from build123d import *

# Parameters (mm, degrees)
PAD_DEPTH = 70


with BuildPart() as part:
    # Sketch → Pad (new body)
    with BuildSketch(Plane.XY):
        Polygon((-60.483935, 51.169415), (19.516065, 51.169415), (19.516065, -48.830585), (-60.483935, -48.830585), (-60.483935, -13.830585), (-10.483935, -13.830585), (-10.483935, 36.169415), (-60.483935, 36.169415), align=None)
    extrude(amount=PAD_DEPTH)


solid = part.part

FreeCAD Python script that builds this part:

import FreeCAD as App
import Part
import Sketcher

V = App.Vector

doc = App.newDocument("Part")
body = doc.addObject("PartDesign::Body", "Body")

sketch1 = body.newObject("Sketcher::SketchObject", "Sketch")
sketch1.AttachmentSupport = (doc.getObject("XY_Plane"), [""])
sketch1.MapMode = "FlatFace"
sketch1.addGeometry([
    Part.LineSegment(V(20, 51, 0), V(-60, 51, 0)),
    Part.LineSegment(V(-60, 51, 0), V(-60, 36, 0)),
    Part.LineSegment(V(-60, 36, 0), V(-10, 36, 0)),
    Part.LineSegment(V(-10, 36, 0), V(-10, -14, 0)),
    Part.LineSegment(V(-10, -14, 0), V(-60, -14, 0)),
    Part.LineSegment(V(-60, -14, 0), V(-60, -49, 0)),
    Part.LineSegment(V(-60, -49, 0), V(20, -49, 0)),
    Part.LineSegment(V(20, -49, 0), V(20, 51, 0)),
], False)
sketch1.addConstraint([
    Sketcher.Constraint("Coincident", 0, 2, 1, 1),
    Sketcher.Constraint("Coincident", 1, 2, 2, 1),
    Sketcher.Constraint("Coincident", 2, 2, 3, 1),
    Sketcher.Constraint("Coincident", 3, 2, 4, 1),
    Sketcher.Constraint("Coincident", 4, 2, 5, 1),
    Sketcher.Constraint("Coincident", 5, 2, 6, 1),
    Sketcher.Constraint("Coincident", 6, 2, 7, 1),
    Sketcher.Constraint("Coincident", 7, 2, 0, 1),
    Sketcher.Constraint("Horizontal", 0),
    Sketcher.Constraint("Vertical", 1),
    Sketcher.Constraint("Horizontal", 2),
    Sketcher.Constraint("Vertical", 3),
    Sketcher.Constraint("Horizontal", 4),
    Sketcher.Constraint("Vertical", 5),
    Sketcher.Constraint("Horizontal", 6),
    Sketcher.Constraint("Vertical", 7),
    Sketcher.Constraint("Vertical", 1, 2, 4, 2),
    Sketcher.Constraint("Equal", 4, 3),
    Sketcher.Constraint("DistanceX", 0, 2, 0, 1, 80.0),
    Sketcher.Constraint("DistanceX", 2, 1, 2, 2, 50.0),
    Sketcher.Constraint("DistanceY", 1, 2, 1, 1, 15.0),
    Sketcher.Constraint("DistanceY", 5, 2, 5, 1, 35.0),
    Sketcher.Constraint("DistanceX", 0, 2, -1, 1, 60.483935),
    Sketcher.Constraint("DistanceY", -1, 1, 0, 2, 51.169415),
])
pad1 = body.newObject("PartDesign::Pad", "Pad")
pad1.Profile = sketch1
pad1.Length = 70

doc.recompute()
